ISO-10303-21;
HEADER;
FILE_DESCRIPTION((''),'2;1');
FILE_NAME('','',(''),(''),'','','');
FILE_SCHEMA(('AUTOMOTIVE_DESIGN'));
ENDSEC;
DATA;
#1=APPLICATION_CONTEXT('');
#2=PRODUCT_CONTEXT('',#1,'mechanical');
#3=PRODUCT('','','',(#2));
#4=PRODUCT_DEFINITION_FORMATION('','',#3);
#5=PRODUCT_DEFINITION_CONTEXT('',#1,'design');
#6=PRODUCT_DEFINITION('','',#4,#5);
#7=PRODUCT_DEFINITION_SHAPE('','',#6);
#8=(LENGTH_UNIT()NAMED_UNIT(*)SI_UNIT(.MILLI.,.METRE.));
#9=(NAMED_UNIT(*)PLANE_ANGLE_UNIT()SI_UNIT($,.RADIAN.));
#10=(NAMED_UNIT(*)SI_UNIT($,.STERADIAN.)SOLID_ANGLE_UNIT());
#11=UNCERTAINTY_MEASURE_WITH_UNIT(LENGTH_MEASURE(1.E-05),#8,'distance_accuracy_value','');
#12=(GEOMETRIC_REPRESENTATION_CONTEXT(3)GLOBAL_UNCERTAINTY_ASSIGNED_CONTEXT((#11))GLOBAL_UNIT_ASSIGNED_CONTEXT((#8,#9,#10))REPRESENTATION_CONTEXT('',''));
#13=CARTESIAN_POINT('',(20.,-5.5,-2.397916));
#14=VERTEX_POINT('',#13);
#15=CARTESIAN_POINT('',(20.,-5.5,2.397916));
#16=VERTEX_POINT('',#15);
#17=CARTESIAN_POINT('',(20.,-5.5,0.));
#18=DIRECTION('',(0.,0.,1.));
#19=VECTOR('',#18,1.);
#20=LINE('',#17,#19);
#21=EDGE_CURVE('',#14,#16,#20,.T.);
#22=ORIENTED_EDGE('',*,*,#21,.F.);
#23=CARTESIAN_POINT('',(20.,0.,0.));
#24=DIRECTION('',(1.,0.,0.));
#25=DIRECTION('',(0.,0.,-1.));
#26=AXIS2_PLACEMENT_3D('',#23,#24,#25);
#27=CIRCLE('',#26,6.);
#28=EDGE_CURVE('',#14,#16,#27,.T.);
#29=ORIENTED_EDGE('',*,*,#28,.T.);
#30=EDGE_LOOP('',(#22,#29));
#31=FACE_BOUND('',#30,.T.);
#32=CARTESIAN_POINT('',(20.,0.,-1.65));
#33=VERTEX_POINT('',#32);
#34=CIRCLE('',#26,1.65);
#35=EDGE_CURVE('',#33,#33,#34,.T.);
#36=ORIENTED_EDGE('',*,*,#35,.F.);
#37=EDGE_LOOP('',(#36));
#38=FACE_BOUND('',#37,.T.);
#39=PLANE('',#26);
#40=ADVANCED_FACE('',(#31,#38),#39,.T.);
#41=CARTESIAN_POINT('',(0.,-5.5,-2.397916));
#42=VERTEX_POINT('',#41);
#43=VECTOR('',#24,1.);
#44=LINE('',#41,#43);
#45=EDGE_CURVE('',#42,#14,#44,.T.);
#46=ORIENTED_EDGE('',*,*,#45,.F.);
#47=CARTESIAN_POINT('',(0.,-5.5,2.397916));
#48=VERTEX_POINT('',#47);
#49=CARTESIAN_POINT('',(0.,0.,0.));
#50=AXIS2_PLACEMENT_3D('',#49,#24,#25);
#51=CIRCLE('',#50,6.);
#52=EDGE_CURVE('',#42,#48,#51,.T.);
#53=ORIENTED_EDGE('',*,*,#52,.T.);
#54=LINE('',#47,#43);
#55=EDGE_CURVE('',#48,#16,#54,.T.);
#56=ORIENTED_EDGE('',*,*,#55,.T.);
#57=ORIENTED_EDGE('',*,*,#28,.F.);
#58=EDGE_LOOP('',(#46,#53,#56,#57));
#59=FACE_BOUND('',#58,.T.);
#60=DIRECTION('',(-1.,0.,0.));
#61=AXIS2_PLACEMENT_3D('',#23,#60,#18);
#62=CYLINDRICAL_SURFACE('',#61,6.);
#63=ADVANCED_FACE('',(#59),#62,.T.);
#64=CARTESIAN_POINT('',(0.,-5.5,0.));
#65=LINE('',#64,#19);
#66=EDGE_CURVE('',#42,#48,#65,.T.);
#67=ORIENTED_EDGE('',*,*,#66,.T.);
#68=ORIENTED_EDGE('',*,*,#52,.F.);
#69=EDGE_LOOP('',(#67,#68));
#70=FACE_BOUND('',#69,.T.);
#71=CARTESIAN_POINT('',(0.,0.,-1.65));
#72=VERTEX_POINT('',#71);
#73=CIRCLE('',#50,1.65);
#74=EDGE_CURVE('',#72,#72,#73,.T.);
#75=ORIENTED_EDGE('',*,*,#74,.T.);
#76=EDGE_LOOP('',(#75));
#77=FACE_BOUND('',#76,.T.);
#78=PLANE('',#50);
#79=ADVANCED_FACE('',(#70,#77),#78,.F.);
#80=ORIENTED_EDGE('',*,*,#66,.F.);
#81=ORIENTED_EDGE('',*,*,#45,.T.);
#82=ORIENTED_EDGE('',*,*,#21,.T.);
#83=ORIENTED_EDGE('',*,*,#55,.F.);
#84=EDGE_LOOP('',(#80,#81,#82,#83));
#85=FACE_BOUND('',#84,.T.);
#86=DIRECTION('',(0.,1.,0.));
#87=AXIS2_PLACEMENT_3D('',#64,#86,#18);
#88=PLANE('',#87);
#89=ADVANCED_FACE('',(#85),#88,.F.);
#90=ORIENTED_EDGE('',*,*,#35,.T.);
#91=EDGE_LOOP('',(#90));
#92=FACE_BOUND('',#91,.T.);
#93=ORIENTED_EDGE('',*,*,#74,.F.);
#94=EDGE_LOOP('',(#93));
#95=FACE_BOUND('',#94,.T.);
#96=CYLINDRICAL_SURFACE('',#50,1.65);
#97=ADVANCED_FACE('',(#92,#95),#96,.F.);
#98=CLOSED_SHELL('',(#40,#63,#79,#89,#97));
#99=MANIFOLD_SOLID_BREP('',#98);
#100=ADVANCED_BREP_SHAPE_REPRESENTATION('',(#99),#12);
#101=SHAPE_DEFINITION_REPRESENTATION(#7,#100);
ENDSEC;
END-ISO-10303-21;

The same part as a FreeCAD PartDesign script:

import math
import FreeCAD as App
import Part
import Sketcher
from FreeCAD import Vector
Q = App.Units.Quantity

doc = App.newDocument("Part")
body = doc.addObject("PartDesign::Body", "Body")

# Sketch on YZ plane
sketch1 = doc.addObject("Sketcher::SketchObject", "Sketch")
body.addObject(sketch1)
sketch1.AttachmentSupport = (doc.YZ_Plane, [""])
sketch1.MapMode = "FlatFace"
sketch1.addGeometry(Part.Circle(Vector(0, 0, 0), Vector(0, 0, 1), 6), False)
sketch1.addConstraint([
    Sketcher.Constraint("Coincident", 0, 3, -1, 1),
    Sketcher.Constraint("Diameter", 0, Q("12 mm")),
])
pad1 = doc.addObject("PartDesign::Pad", "Pad")
body.addObject(pad1)
pad1.Profile = sketch1
pad1.Length = 20

# Sketch on YZ plane
sketch2 = doc.addObject("Sketcher::SketchObject", "Sketch001")
body.addObject(sketch2)
sketch2.AttachmentSupport = (doc.YZ_Plane, [""])
sketch2.MapMode = "FlatFace"
sketch2.AttachmentOffset = App.Placement(Vector(0, 0, 20), App.Rotation())
sketch2.addGeometry(Part.Circle(Vector(0, 0, 0), Vector(0, 0, 1), 1.6), False)
sketch2.addConstraint([
    Sketcher.Constraint("Coincident", 0, 3, -1, 1),
    Sketcher.Constraint("Diameter", 0, Q("3.3 mm")),
])
pocket1 = doc.addObject("PartDesign::Pocket", "Pocket")
body.addObject(pocket1)
pocket1.Profile = sketch2
pocket1.Type = "ThroughAll"

# Sketch on YZ plane
sketch3 = doc.addObject("Sketcher::SketchObject", "Sketch002")
body.addObject(sketch3)
sketch3.AttachmentSupport = (doc.YZ_Plane, [""])
sketch3.MapMode = "FlatFace"
sketch3.AttachmentOffset = App.Placement(Vector(0, 0, 20), App.Rotation())
sketch3.addGeometry([
    Part.LineSegment(Vector(-5.5, -2.4, 0), Vector(-5.5, 2.4, 0)),
    Part.ArcOfCircle(Part.Circle(Vector(0, 0, 0), Vector(0, 0, 1), 6), math.radians(156), math.radians(204)),
], False)
sketch3.addConstraint([
    Sketcher.Constraint("Coincident", 0, 1, 1, 2),
    Sketcher.Constraint("Coincident", 1, 1, 0, 2),
    Sketcher.Constraint("Vertical", 0),
    Sketcher.Constraint("Coincident", 1, 3, -1, 1),
    Sketcher.Constraint("Radius", 1, Q("6 mm")),
    Sketcher.Constraint("DistanceX", 0, 1, -1, 1, Q("5.5 mm")),
])
pocket2 = doc.addObject("PartDesign::Pocket", "Pocket001")
body.addObject(pocket2)
pocket2.Profile = sketch3
pocket2.Type = "ThroughAll"

doc.recompute()
